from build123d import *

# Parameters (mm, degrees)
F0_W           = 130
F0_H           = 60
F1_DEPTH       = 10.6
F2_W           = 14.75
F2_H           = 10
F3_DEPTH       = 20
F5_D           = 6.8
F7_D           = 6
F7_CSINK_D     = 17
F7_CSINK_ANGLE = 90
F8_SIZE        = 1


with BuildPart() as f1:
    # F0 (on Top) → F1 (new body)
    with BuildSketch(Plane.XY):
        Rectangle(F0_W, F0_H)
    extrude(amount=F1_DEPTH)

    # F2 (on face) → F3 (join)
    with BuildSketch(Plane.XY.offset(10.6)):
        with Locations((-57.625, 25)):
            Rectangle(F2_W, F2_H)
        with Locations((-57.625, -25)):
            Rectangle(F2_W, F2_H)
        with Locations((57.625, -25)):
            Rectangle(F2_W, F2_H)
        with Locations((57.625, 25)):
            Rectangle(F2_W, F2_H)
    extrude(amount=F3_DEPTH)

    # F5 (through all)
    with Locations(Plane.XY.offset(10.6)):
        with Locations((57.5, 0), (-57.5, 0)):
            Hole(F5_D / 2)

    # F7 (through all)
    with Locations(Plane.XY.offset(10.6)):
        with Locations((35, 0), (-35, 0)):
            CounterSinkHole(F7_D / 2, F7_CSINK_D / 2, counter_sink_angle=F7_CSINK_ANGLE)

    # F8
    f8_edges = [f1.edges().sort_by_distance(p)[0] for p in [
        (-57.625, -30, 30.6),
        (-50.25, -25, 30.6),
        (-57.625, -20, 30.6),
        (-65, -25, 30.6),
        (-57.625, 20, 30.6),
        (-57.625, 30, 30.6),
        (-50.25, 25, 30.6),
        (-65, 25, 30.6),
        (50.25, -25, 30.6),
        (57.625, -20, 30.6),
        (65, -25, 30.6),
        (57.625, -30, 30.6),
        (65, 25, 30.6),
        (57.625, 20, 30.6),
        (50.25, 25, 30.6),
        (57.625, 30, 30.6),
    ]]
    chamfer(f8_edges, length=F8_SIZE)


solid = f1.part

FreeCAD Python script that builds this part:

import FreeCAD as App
import Part
import Sketcher
from FreeCAD import Vector


def edges_at(feature, points):
    """Names of the edges that pass closest to the given points."""
    edges = feature.Shape.Edges
    near = lambda p: min(range(len(edges)), key=lambda i: edges[i].distToShape(Part.Vertex(*p))[0])
    return sorted({f"Edge{near(p) + 1}" for p in points})


def add_polygon(sketch, points):
    """Adds a closed chain of lines whose ends are joined by coincident constraints."""
    first, n = sketch.GeometryCount, len(points)
    for a, b in zip(points, points[1:] + points[:1]):
        sketch.addGeometry(Part.LineSegment(App.Vector(*a, 0), App.Vector(*b, 0)), False)
    for i in range(n):
        sketch.addConstraint(Sketcher.Constraint("Coincident", first + i, 2, first + (i + 1) % n, 1))

doc = App.newDocument("Part")
body = doc.addObject("PartDesign::Body", "Body")

# Sketch on XY plane
sketch1 = body.newObject("Sketcher::SketchObject", "Sketch")
sketch1.AttachmentSupport = (doc.getObject("XY_Plane"), [""])
sketch1.MapMode = "FlatFace"
add_polygon(sketch1, [(-65, 30), (-65, -30), (65, -30), (65, 30)])  # lines 0-3
sketch1.addConstraint([
    Sketcher.Constraint("Vertical", 0),
    Sketcher.Constraint("Horizontal", 1),
    Sketcher.Constraint("Vertical", 2),
    Sketcher.Constraint("Horizontal", 3),
    Sketcher.Constraint("Symmetric", 0, 2, 2, 2, -1, 1),
    Sketcher.Constraint("DistanceX", 1, 1, 1, 2, 130.0),
    Sketcher.Constraint("DistanceY", 0, 2, 0, 1, 60.0),
])
pad1 = body.newObject("PartDesign::Pad", "Pad")
pad1.Profile = sketch1
pad1.Length = 10.6

# Sketch on XY plane
sketch2 = body.newObject("Sketcher::SketchObject", "Sketch001")
sketch2.AttachmentSupport = (doc.getObject("XY_Plane"), [""])
sketch2.MapMode = "FlatFace"
sketch2.AttachmentOffset = App.Placement(Vector(0, 0, 10.6), App.Rotation())
add_polygon(sketch2, [(-65, 30), (-65, 20), (-50, 20), (-50, 30)])  # lines 0-3
add_polygon(sketch2, [(-65, -20), (-65, -30), (-50, -30), (-50, -20)])  # lines 4-7
add_polygon(sketch2, [(50, -20), (50, -30), (65, -30), (65, -20)])  # lines 8-11
add_polygon(sketch2, [(50, 30), (50, 20), (65, 20), (65, 30)])  # lines 12-15
sketch2.addConstraint([
    Sketcher.Constraint("Vertical", 0),
    Sketcher.Constraint("Horizontal", 1),
    Sketcher.Constraint("Vertical", 2),
    Sketcher.Constraint("Horizontal", 3),
    Sketcher.Constraint("Vertical", 4),
    Sketcher.Constraint("Horizontal", 5),
    Sketcher.Constraint("Vertical", 6),
    Sketcher.Constraint("Horizontal", 7),
    Sketcher.Constraint("Vertical", 8),
    Sketcher.Constraint("Horizontal", 9),
    Sketcher.Constraint("Vertical", 10),
    Sketcher.Constraint("Horizontal", 11),
    Sketcher.Constraint("Vertical", 12),
    Sketcher.Constraint("Horizontal", 13),
    Sketcher.Constraint("Vertical", 14),
    Sketcher.Constraint("Horizontal", 15),
    Sketcher.Constraint("Symmetric", 2, 2, 8, 2, -1, 1),
    Sketcher.Constraint("Symmetric", 0, 2, 10, 2, -1, 1),
    Sketcher.Constraint("Symmetric", 6, 2, 12, 2, -1, 1),
    Sketcher.Constraint("Symmetric", 4, 2, 14, 2, -1, 1),
    Sketcher.Constraint("Symmetric", 5, 2, 8, 2, -2),
    Sketcher.Constraint("Symmetric", 7, 2, 10, 2, -2),
    Sketcher.Constraint("DistanceY", 0, 2, 0, 1, 10.0),
    Sketcher.Constraint("DistanceX", 0, 2, -1, 1, 65.0),
    Sketcher.Constraint("DistanceY", -1, 1, 0, 2, 20.0),
    Sketcher.Constraint("DistanceX", 1, 1, 1, 2, 14.75),
])
pad2 = body.newObject("PartDesign::Pad", "Pad001")
pad2.Profile = sketch2
pad2.Length = 20

# Sketch on XY plane
sketch3 = body.newObject("Sketcher::SketchObject", "Sketch002")
sketch3.AttachmentSupport = (doc.getObject("XY_Plane"), [""])
sketch3.MapMode = "FlatFace"
sketch3.AttachmentOffset = App.Placement(Vector(0, 0, 10.6), App.Rotation())
sketch3.addGeometry([
    Part.Circle(Vector(57.5, 0, 0), Vector(0, 0, 1), 3.4),
    Part.Circle(Vector(-57.5, 0, 0), Vector(0, 0, 1), 3.4),
], False)
sketch3.addConstraint([
    Sketcher.Constraint("Equal", 0, 1),
    Sketcher.Constraint("Symmetric", 0, 3, 1, 3, -1, 1),
    Sketcher.Constraint("PointOnObject", 0, 3, -1),
    Sketcher.Constraint("Diameter", 0, 6.8),
    Sketcher.Constraint("DistanceX", 1, 3, 0, 3, 115.0),
])
doc.recompute()
hole = body.newObject("PartDesign::Hole", "Hole")
hole.Profile = sketch3
hole.ThreadType = "None"
hole.Diameter = 6.8
hole.DepthType = "ThroughAll"

# Sketch on XY plane
sketch4 = body.newObject("Sketcher::SketchObject", "Sketch003")
sketch4.AttachmentSupport = (doc.getObject("XY_Plane"), [""])
sketch4.MapMode = "FlatFace"
sketch4.AttachmentOffset = App.Placement(Vector(0, 0, 10.6), App.Rotation())
sketch4.addGeometry([
    Part.Circle(Vector(35, 0, 0), Vector(0, 0, 1), 3),
    Part.Circle(Vector(-35, 0, 0), Vector(0, 0, 1), 3),
], False)
sketch4.addConstraint([
    Sketcher.Constraint("Equal", 0, 1),
    Sketcher.Constraint("Symmetric", 0, 3, 1, 3, -1, 1),
    Sketcher.Constraint("PointOnObject", 0, 3, -1),
    Sketcher.Constraint("Diameter", 0, 6.0),
    Sketcher.Constraint("DistanceX", -1, 1, 0, 3, 35.0),
])
doc.recompute()
hole2 = body.newObject("PartDesign::Hole", "Hole001")
hole2.Profile = sketch4
hole2.ThreadType = "None"
hole2.Diameter = 6
hole2.DepthType = "ThroughAll"
hole2.HoleCutType = "Countersink"
hole2.HoleCutDiameter = 17
hole2.HoleCutCountersinkAngle = 90
doc.recompute()

chamfer = body.newObject("PartDesign::Chamfer", "Chamfer")
chamfer.Base = (hole2, edges_at(hole2, [
    (-57.625, -30, 30.6),
    (-50.25, -25, 30.6),
    (-57.625, -20, 30.6),
    (-65, -25, 30.6),
    (-57.625, 20, 30.6),
    (-57.625, 30, 30.6),
    (-50.25, 25, 30.6),
    (-65, 25, 30.6),
    (50.25, -25, 30.6),
    (57.625, -20, 30.6),
    (65, -25, 30.6),
    (57.625, -30, 30.6),
    (65, 25, 30.6),
    (57.625, 20, 30.6),
    (50.25, 25, 30.6),
    (57.625, 30, 30.6),
]))
chamfer.Size = 1

doc.recompute()
